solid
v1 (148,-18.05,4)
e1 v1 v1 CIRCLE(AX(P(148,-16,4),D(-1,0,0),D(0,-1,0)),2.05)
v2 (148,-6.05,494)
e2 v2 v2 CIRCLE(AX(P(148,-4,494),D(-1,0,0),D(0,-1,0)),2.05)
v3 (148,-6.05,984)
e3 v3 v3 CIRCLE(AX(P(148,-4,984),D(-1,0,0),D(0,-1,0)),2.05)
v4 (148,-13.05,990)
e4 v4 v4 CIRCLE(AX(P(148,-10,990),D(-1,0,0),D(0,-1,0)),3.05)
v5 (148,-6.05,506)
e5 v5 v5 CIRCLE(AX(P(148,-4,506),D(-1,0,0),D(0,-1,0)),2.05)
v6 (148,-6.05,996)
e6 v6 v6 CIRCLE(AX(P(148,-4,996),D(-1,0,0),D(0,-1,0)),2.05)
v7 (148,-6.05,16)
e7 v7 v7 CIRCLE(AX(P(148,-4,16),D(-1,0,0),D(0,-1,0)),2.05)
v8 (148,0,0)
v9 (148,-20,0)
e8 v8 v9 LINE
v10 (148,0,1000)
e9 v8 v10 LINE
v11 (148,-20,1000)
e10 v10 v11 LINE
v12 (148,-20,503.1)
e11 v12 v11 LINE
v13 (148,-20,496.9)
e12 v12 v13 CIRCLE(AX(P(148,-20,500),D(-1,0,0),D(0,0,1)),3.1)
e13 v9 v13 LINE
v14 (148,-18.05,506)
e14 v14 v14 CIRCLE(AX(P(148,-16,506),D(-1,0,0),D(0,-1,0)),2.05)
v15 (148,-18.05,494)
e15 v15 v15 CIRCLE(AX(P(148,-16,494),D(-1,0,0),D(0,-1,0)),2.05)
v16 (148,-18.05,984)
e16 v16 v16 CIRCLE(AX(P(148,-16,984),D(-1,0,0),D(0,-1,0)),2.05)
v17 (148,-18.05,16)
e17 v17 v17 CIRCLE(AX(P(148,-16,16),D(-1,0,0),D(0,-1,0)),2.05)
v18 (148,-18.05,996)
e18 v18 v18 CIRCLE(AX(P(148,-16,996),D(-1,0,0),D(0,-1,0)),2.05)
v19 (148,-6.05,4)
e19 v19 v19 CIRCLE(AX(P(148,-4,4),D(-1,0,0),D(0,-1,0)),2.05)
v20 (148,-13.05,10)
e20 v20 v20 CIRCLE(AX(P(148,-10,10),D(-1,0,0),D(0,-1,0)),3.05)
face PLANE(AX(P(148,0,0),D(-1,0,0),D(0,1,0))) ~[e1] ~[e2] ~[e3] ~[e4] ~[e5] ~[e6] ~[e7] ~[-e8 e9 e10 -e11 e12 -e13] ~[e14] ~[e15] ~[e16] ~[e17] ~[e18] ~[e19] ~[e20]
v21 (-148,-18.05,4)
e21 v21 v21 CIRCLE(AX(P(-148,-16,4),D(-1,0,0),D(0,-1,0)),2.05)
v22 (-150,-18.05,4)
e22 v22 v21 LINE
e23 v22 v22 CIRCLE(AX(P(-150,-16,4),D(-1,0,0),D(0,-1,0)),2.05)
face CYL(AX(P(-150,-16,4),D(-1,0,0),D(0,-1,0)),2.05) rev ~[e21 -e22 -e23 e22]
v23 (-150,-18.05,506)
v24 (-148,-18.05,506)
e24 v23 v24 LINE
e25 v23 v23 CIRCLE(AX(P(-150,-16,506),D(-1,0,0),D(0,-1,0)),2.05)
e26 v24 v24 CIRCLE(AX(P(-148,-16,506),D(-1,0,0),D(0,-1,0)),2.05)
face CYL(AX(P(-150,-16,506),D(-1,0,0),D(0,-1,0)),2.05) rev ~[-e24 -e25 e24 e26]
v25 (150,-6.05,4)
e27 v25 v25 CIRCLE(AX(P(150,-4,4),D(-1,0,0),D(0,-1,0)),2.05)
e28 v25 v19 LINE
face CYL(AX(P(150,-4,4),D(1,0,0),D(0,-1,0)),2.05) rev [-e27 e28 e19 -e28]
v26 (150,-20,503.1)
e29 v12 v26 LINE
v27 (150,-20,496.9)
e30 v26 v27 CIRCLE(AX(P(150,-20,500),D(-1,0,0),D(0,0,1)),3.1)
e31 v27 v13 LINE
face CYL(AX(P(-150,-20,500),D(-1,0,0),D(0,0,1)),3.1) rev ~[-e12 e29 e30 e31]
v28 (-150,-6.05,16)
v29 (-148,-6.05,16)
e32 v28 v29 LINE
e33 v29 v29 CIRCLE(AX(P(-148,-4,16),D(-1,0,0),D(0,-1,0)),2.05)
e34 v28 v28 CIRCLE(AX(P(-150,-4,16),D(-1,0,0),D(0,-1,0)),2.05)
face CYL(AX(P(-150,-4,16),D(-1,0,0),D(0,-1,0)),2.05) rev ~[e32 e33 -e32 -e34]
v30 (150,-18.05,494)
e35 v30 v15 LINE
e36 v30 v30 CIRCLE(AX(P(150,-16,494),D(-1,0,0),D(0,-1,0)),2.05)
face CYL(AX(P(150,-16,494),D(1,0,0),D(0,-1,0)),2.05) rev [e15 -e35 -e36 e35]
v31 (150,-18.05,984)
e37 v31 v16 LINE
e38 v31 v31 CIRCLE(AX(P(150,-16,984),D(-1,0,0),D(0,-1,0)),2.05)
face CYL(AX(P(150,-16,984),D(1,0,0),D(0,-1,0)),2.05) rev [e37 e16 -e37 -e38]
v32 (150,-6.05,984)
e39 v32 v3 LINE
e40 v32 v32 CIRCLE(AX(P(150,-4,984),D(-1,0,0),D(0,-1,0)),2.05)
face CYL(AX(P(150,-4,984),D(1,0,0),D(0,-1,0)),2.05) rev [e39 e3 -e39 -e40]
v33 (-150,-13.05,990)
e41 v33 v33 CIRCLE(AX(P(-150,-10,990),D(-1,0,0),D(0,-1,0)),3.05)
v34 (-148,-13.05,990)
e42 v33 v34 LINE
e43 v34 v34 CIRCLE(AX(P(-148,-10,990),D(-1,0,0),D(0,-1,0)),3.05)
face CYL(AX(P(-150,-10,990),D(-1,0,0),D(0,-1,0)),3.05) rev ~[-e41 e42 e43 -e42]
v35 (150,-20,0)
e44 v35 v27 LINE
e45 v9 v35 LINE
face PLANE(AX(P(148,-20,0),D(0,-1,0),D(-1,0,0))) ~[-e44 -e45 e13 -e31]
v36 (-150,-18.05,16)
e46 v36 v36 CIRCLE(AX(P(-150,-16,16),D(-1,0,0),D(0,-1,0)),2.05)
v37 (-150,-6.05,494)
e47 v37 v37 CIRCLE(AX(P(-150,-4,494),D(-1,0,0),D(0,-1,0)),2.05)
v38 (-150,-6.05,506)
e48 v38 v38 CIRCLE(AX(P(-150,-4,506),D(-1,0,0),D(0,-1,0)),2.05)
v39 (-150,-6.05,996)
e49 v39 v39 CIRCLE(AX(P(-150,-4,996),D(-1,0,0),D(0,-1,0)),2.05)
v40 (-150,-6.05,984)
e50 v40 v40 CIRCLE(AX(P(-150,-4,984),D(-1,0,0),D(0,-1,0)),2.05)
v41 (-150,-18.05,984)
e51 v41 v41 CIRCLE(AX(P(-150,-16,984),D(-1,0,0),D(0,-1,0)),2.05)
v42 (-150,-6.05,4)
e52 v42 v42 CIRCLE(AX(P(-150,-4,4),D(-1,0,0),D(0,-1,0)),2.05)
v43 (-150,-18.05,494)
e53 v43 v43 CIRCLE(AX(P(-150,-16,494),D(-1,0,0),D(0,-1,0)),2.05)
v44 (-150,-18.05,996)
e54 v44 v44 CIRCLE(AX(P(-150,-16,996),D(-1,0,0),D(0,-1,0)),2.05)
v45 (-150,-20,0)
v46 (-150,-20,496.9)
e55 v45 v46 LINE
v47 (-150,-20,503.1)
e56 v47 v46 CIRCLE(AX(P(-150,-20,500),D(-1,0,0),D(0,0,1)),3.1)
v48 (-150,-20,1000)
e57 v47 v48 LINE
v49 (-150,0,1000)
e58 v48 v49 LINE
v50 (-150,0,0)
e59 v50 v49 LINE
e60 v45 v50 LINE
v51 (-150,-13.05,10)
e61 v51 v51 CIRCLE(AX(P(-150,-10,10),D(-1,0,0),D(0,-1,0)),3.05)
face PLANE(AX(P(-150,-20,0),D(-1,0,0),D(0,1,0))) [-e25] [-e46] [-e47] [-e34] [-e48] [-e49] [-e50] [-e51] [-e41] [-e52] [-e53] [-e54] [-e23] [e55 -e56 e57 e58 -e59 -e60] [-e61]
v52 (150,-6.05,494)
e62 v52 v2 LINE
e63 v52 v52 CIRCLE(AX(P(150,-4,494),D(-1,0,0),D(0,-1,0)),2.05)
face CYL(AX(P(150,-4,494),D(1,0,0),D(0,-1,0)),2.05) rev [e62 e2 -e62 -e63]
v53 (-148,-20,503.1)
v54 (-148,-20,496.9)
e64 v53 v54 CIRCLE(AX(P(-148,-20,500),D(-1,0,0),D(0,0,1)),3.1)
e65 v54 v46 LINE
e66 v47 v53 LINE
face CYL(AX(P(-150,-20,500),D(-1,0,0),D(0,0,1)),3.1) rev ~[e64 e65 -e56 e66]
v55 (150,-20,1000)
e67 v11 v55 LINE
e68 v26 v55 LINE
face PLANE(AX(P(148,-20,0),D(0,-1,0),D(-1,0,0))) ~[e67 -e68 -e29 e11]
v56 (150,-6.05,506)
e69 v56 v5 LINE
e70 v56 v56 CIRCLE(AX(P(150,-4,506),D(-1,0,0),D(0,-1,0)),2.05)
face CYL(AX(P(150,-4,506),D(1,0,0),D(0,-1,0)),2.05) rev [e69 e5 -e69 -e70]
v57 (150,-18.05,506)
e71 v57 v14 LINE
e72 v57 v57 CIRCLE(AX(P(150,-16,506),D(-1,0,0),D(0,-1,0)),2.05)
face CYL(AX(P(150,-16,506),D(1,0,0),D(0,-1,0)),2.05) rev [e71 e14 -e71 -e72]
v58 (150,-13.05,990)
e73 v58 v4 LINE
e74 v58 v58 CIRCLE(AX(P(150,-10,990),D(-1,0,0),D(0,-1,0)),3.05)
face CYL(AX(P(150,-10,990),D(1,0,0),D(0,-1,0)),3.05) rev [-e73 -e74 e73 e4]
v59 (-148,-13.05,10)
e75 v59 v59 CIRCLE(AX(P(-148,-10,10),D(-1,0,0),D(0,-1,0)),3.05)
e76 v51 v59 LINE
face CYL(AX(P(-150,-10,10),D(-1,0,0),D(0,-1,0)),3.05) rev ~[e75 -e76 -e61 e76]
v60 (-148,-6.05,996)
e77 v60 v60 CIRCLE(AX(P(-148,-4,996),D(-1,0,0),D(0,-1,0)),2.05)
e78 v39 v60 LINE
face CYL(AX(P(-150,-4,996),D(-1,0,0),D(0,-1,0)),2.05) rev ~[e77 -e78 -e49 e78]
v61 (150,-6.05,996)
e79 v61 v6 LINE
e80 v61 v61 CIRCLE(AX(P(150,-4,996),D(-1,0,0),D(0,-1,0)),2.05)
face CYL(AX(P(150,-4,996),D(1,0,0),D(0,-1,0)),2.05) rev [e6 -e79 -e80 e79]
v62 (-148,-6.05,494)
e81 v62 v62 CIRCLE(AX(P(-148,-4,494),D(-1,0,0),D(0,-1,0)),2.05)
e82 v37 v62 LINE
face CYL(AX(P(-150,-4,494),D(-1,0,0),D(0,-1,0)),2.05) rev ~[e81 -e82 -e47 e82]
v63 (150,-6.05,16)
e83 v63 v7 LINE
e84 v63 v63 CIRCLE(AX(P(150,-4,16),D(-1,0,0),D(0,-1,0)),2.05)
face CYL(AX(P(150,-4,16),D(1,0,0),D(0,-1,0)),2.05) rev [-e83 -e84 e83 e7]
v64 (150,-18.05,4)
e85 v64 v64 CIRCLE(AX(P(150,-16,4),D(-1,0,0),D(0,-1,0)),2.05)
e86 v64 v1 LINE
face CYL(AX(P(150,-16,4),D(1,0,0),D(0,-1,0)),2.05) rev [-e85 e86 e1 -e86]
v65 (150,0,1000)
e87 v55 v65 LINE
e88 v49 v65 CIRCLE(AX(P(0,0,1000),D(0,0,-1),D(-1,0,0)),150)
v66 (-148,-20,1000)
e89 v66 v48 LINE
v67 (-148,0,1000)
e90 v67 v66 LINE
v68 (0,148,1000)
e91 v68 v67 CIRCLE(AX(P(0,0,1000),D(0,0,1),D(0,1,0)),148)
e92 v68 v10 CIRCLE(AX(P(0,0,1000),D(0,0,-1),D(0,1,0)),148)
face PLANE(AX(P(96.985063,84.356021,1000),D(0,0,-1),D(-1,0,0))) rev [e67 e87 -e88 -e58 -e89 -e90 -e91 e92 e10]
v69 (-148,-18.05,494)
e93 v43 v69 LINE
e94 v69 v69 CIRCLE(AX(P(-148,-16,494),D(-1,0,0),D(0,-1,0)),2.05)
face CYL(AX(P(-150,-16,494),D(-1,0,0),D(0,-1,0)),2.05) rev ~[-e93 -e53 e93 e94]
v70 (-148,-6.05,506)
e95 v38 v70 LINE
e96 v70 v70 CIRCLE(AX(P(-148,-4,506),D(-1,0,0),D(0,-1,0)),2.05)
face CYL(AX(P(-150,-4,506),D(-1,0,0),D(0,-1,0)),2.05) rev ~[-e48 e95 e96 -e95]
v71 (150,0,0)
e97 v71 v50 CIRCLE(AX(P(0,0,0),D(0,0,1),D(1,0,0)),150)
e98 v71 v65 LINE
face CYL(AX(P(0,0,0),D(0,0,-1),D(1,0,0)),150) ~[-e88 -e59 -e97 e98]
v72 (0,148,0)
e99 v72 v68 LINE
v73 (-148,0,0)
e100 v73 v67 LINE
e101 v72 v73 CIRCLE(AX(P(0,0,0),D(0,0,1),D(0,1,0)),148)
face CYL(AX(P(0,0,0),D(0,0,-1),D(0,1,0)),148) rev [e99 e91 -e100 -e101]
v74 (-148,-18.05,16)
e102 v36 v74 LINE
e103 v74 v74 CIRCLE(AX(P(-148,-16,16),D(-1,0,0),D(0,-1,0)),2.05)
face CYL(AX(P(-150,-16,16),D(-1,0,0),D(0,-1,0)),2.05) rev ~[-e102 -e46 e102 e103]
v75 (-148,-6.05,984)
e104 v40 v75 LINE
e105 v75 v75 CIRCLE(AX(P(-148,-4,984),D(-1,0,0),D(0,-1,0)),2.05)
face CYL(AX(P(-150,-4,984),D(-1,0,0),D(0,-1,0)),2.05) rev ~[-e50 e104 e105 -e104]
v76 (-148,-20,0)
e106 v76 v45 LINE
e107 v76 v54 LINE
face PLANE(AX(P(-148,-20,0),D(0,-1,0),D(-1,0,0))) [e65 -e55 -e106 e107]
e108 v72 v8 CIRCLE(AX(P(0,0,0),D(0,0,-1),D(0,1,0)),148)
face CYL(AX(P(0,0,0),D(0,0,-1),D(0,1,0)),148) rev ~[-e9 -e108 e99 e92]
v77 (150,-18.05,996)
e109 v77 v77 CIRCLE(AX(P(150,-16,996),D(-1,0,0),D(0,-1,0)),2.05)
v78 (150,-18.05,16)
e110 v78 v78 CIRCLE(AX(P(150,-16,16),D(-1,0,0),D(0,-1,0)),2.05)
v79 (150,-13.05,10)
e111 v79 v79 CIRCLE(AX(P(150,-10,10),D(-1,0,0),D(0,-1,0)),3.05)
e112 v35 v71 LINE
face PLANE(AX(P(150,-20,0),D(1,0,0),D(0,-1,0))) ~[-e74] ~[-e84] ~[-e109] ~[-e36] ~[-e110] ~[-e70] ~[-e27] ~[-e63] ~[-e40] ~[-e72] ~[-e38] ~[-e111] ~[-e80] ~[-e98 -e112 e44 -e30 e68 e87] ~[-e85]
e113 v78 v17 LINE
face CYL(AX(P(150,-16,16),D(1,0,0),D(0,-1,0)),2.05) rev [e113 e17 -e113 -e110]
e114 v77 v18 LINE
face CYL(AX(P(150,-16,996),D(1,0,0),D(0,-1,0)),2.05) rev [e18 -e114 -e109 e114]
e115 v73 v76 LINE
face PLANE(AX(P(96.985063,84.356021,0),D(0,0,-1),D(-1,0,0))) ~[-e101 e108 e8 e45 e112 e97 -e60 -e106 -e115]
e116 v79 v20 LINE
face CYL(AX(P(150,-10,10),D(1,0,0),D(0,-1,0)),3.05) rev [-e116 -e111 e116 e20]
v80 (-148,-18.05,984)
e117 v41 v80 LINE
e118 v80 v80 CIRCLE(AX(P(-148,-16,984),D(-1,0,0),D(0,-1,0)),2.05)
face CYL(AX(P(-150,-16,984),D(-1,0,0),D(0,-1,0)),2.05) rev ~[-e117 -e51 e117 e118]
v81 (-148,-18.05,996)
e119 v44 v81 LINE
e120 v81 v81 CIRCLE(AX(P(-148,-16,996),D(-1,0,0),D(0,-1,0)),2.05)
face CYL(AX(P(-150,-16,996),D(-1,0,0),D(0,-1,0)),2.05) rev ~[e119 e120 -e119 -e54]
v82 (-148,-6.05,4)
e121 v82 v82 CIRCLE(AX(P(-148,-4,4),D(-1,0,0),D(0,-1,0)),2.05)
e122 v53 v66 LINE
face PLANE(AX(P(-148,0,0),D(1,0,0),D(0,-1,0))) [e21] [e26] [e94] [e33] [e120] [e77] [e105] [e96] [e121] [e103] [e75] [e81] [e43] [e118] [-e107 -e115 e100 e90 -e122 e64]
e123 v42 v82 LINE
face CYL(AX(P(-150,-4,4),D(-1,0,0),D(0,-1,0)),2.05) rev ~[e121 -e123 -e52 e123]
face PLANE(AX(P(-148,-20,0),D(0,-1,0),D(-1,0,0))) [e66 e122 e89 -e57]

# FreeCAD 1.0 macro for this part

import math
import FreeCAD as App
import Part
import Sketcher
Q = App.Units.Quantity

doc = App.newDocument("Part")
params = doc.addObject("Spreadsheet::Sheet", "Params")
for row, (alias, value) in enumerate([
    ("sketch1_radius", "150 mm"),
    ("sketch1_radius2", "148 mm"),
    ("sketch1_height", "20 mm"),
    ("pad1_length", "1000 mm"),
    ("sketch2_diameter", "6.1 mm"),
    ("pocket1_length", "500 mm"),
    ("sketch3_diameter", "4.1 mm"),
    ("pocket2_length", "5 mm"),
    ("sketch4_diameter", "6.2 mm"),
    ("pocket3_length", "310 mm"),
], start=1):
    params.set(f"A{row}", alias)
    params.set(f"B{row}", "=" + value)
    params.setAlias(f"B{row}", alias)

body = doc.addObject("PartDesign::Body", "Body")

# Sketch on XY plane
sketch1 = doc.addObject("Sketcher::SketchObject", "Sketch")
body.addObject(sketch1)
sketch1.AttachmentSupport = (doc.XY_Plane, [""])
sketch1.MapMode = "FlatFace"
sketch1.addGeometry([
    Part.LineSegment(App.Vector(0, 148, 0), App.Vector(0, 150, 0)),  # 0
    Part.ArcOfCircle(Part.Circle(App.Vector(0, 0, 0), App.Vector(0, 0, 1), 150), math.radians(90), math.radians(180)),  # 1
    Part.LineSegment(App.Vector(-150, 0, 0), App.Vector(-150, -20, 0)),  # 2
    Part.LineSegment(App.Vector(-150, -20, 0), App.Vector(-148, -20, 0)),  # 3
    Part.LineSegment(App.Vector(-148, -20, 0), App.Vector(-148, 0, 0)),  # 4
    Part.ArcOfCircle(Part.Circle(App.Vector(0, 0, 0), App.Vector(0, 0, 1), 148), math.radians(90), math.radians(180)),  # 5
], False)
sketch1.addConstraint([
    Sketcher.Constraint("Coincident", 0, 2, 1, 1),
    Sketcher.Constraint("Tangent", 1, 2, 2, 1),
    Sketcher.Constraint("Coincident", 2, 2, 3, 1),
    Sketcher.Constraint("Coincident", 3, 2, 4, 1),
    Sketcher.Constraint("Tangent", 4, 2, 5, 2),
    Sketcher.Constraint("Coincident", 5, 1, 0, 1),
    Sketcher.Constraint("Vertical", 0),
    Sketcher.Constraint("Vertical", 2),
    Sketcher.Constraint("Horizontal", 3),
    Sketcher.Constraint("Vertical", 4),
    Sketcher.Constraint("Coincident", 1, 3, -1, 1),
    Sketcher.Constraint("Coincident", 5, 3, -1, 1),
    Sketcher.Constraint("PointOnObject", 0, 2, -2),
    Sketcher.Constraint("Radius", 1, Q("150 mm")),
    Sketcher.Constraint("Radius", 5, Q("148 mm")),
    Sketcher.Constraint("DistanceY", 2, 2, 2, 1, Q("20 mm")),
])
sketch1.setExpression("Constraints[13]", "Params.sketch1_radius")
sketch1.setExpression("Constraints[14]", "Params.sketch1_radius2")
sketch1.setExpression("Constraints[15]", "Params.sketch1_height")
pad1 = doc.addObject("PartDesign::Pad", "Pad")
body.addObject(pad1)
pad1.Profile = sketch1
pad1.setExpression("Length", "Params.pad1_length")

# Sketch on YZ plane
sketch2 = doc.addObject("Sketcher::SketchObject", "Sketch001")
body.addObject(sketch2)
sketch2.AttachmentSupport = (doc.YZ_Plane, [""])
sketch2.MapMode = "FlatFace"
sketch2.AttachmentOffset = App.Placement(App.Vector(0, 0, -150), App.Rotation())
sketch2.addGeometry([
    Part.Circle(App.Vector(-10, 10, 0), App.Vector(0, 0, 1), 3),
    Part.Circle(App.Vector(-10, 990, 0), App.Vector(0, 0, 1), 3),
], False)
sketch2.addConstraint([
    Sketcher.Constraint("Equal", 0, 1),
    Sketcher.Constraint("Vertical", 0, 3, 1, 3),
    Sketcher.Constraint("Diameter", 0, Q("6.1 mm")),
    Sketcher.Constraint("DistanceX", 0, 3, -1, 1, Q("10 mm")),
    Sketcher.Constraint("DistanceY", -1, 1, 0, 3, Q("10 mm")),
    Sketcher.Constraint("DistanceY", -1, 1, 1, 3, Q("990 mm")),
])
sketch2.setExpression("Constraints[2]", "Params.sketch2_diameter")
pocket1 = doc.addObject("PartDesign::Pocket", "Pocket")
body.addObject(pocket1)
pocket1.Profile = sketch2
pocket1.setExpression("Length", "Params.pocket1_length")
pocket1.Reversed = True

# Sketch on YZ plane
sketch3 = doc.addObject("Sketcher::SketchObject", "Sketch002")
body.addObject(sketch3)
sketch3.AttachmentSupport = (doc.YZ_Plane, [""])
sketch3.MapMode = "FlatFace"
sketch3.AttachmentOffset = App.Placement(App.Vector(0, 0, -150), App.Rotation())
sketch3.addGeometry([
    Part.Circle(App.Vector(-4, 4, 0), App.Vector(0, 0, 1), 2),  # 0
    Part.Circle(App.Vector(-4, 16, 0), App.Vector(0, 0, 1), 2),  # 1
    Part.Circle(App.Vector(-16, 4, 0), App.Vector(0, 0, 1), 2),  # 2
    Part.Circle(App.Vector(-16, 16, 0), App.Vector(0, 0, 1), 2),  # 3
    Part.Circle(App.Vector(-4, 494, 0), App.Vector(0, 0, 1), 2),  # 4
    Part.Circle(App.Vector(-4, 506, 0), App.Vector(0, 0, 1), 2),  # 5
    Part.Circle(App.Vector(-16, 494, 0), App.Vector(0, 0, 1), 2),  # 6
    Part.Circle(App.Vector(-16, 506, 0), App.Vector(0, 0, 1), 2),  # 7
    Part.Circle(App.Vector(-4, 984, 0), App.Vector(0, 0, 1), 2),  # 8
    Part.Circle(App.Vector(-4, 996, 0), App.Vector(0, 0, 1), 2),  # 9
    Part.Circle(App.Vector(-16, 984, 0), App.Vector(0, 0, 1), 2),  # 10
    Part.Circle(App.Vector(-16, 996, 0), App.Vector(0, 0, 1), 2),  # 11
], False)
sketch3.addConstraint([
    Sketcher.Constraint("Equal", 0, 1),
    Sketcher.Constraint("Equal", 1, 2),
    Sketcher.Constraint("Equal", 2, 3),
    Sketcher.Constraint("Equal", 3, 4),
    Sketcher.Constraint("Equal", 4, 5),
    Sketcher.Constraint("Equal", 5, 6),
    Sketcher.Constraint("Equal", 6, 7),
    Sketcher.Constraint("Equal", 7, 8),
    Sketcher.Constraint("Equal", 8, 9),
    Sketcher.Constraint("Equal", 9, 10),
    Sketcher.Constraint("Equal", 10, 11),
    Sketcher.Constraint("Horizontal", 0, 3, 2, 3),
    Sketcher.Constraint("Horizontal", 1, 3, 3, 3),
    Sketcher.Constraint("Horizontal", 4, 3, 6, 3),
    Sketcher.Constraint("Horizontal", 5, 3, 7, 3),
    Sketcher.Constraint("Horizontal", 8, 3, 10, 3),
    Sketcher.Constraint("Horizontal", 9, 3, 11, 3),
    Sketcher.Constraint("Vertical", 0, 3, 1, 3),
    Sketcher.Constraint("Vertical", 2, 3, 3, 3),
    Sketcher.Constraint("Vertical", 1, 3, 4, 3),
    Sketcher.Constraint("Vertical", 4, 3, 5, 3),
    Sketcher.Constraint("Vertical", 3, 3, 6, 3),
    Sketcher.Constraint("Vertical", 6, 3, 7, 3),
    Sketcher.Constraint("Vertical", 5, 3, 8, 3),
    Sketcher.Constraint("Vertical", 8, 3, 9, 3),
    Sketcher.Constraint("Vertical", 7, 3, 10, 3),
    Sketcher.Constraint("Vertical", 10, 3, 11, 3),
    Sketcher.Constraint("Diameter", 0, Q("4.1 mm")),
    Sketcher.Constraint("DistanceX", 0, 3, -1, 1, Q("4 mm")),
    Sketcher.Constraint("DistanceY", -1, 1, 0, 3, Q("4 mm")),
    Sketcher.Constraint("DistanceY", -1, 1, 1, 3, Q("16 mm")),
    Sketcher.Constraint("DistanceX", 2, 3, -1, 1, Q("16 mm")),
    Sketcher.Constraint("DistanceY", -1, 1, 4, 3, Q("494 mm")),
    Sketcher.Constraint("DistanceY", -1, 1, 5, 3, Q("506 mm")),
    Sketcher.Constraint("DistanceY", -1, 1, 8, 3, Q("984 mm")),
    Sketcher.Constraint("DistanceY", -1, 1, 9, 3, Q("996 mm")),
])
sketch3.setExpression("Constraints[27]", "Params.sketch3_diameter")
pocket2 = doc.addObject("PartDesign::Pocket", "Pocket001")
body.addObject(pocket2)
pocket2.Profile = sketch3
pocket2.setExpression("Length", "Params.pocket2_length")
pocket2.Reversed = True
body2 = doc.addObject("PartDesign::Body", "Body001")
doc.recompute()

body2.BaseFeature = body
doc.recompute()

mirroring = doc.addObject("Part::Mirroring", "Mirroring")
mirroring.Source = body
mirroring.Base = App.Vector(0, 150, 1000)
mirroring.Normal = App.Vector(-1, 0, 0)
body3 = doc.addObject("PartDesign::Body", "Body002")
body3.BaseFeature = mirroring
boolean = doc.addObject("PartDesign::Boolean", "Boolean")
body2.addObject(boolean)
boolean.Type = "Fuse"
boolean.addObjects([body3])
doc.recompute()

# Sketch on YZ plane
sketch4 = doc.addObject("Sketcher::SketchObject", "Sketch003")
body2.addObject(sketch4)
sketch4.AttachmentSupport = (doc.getObject("YZ_Plane001"), [""])
sketch4.MapMode = "FlatFace"
sketch4.AttachmentOffset = App.Placement(App.Vector(0, 0, -150), App.Rotation())
sketch4.addGeometry(Part.Circle(App.Vector(-20, 500, 0), App.Vector(0, 0, 1), 3.1), False)
sketch4.addConstraint([
    Sketcher.Constraint("Diameter", 0, Q("6.2 mm")),
    Sketcher.Constraint("DistanceX", 0, 3, -1, 1, Q("20 mm")),
    Sketcher.Constraint("DistanceY", -1, 1, 0, 3, Q("500 mm")),
])
sketch4.setExpression("Constraints[0]", "Params.sketch4_diameter")
pocket3 = doc.addObject("PartDesign::Pocket", "Pocket002")
body2.addObject(pocket3)
pocket3.Profile = sketch4
pocket3.setExpression("Length", "Params.pocket3_length")
pocket3.Reversed = True
mirroring.Visibility = False

doc.recompute()
